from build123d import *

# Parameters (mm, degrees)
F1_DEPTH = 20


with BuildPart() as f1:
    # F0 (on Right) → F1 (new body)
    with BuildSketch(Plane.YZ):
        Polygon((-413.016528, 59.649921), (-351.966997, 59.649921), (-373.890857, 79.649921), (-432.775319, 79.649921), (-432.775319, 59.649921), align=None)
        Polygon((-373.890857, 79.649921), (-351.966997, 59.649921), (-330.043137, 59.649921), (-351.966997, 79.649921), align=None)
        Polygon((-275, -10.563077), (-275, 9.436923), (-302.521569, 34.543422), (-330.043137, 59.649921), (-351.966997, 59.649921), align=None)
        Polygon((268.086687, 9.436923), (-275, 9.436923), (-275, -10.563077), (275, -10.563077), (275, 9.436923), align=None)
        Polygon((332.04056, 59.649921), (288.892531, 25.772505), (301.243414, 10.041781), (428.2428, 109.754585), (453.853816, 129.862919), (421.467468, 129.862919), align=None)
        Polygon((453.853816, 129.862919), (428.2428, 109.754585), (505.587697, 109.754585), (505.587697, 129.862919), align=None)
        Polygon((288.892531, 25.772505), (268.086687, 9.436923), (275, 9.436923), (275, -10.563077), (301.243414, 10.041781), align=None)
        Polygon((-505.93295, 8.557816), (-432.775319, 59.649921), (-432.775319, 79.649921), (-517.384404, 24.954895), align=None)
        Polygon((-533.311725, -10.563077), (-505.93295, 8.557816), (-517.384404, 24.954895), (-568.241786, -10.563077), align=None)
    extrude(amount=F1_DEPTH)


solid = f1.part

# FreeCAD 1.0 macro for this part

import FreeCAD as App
import Part
import Sketcher
from FreeCAD import Vector
Q = App.Units.Quantity

doc = App.newDocument("Part")
body = doc.addObject("PartDesign::Body", "Body")

# Sketch on YZ plane
sketch1 = doc.addObject("Sketcher::SketchObject", "Sketch")
body.addObject(sketch1)
sketch1.AttachmentSupport = (doc.YZ_Plane, [""])
sketch1.MapMode = "FlatFace"
sketch1.addGeometry([
    Part.LineSegment(Vector(-432.775319, 59.649921, 0), Vector(-351.966997, 59.649921, 0)),  # 0
    Part.LineSegment(Vector(-351.966997, 59.649921, 0), Vector(-275, -10.563077, 0)),  # 1
    Part.LineSegment(Vector(-275, -10.563077, 0), Vector(275, -10.563077, 0)),  # 2
    Part.LineSegment(Vector(275, -10.563077, 0), Vector(301.243414, 10.041781, 0)),  # 3
    Part.LineSegment(Vector(301.243414, 10.041781, 0), Vector(428.2428, 109.754585, 0)),  # 4
    Part.LineSegment(Vector(428.2428, 109.754585, 0), Vector(505.587697, 109.754585, 0)),  # 5
    Part.LineSegment(Vector(505.587697, 109.754585, 0), Vector(505.587697, 129.862919, 0)),  # 6
    Part.LineSegment(Vector(505.587697, 129.862919, 0), Vector(421.467468, 129.862919, 0)),  # 7
    Part.LineSegment(Vector(421.467468, 129.862919, 0), Vector(332.04056, 59.649921, 0)),  # 8
    Part.LineSegment(Vector(332.04056, 59.649921, 0), Vector(288.892531, 25.772505, 0)),  # 9
    Part.LineSegment(Vector(288.892531, 25.772505, 0), Vector(268.086687, 9.436923, 0)),  # 10
    Part.LineSegment(Vector(268.086687, 9.436923, 0), Vector(-275, 9.436923, 0)),  # 11
    Part.LineSegment(Vector(-275, 9.436923, 0), Vector(-302.521569, 34.543422, 0)),  # 12
    Part.LineSegment(Vector(-302.521569, 34.543422, 0), Vector(-330.043137, 59.649921, 0)),  # 13
    Part.LineSegment(Vector(-330.043137, 59.649921, 0), Vector(-351.966997, 79.649921, 0)),  # 14
    Part.LineSegment(Vector(-351.966997, 79.649921, 0), Vector(-432.775319, 79.649921, 0)),  # 15
    Part.LineSegment(Vector(-432.775319, 79.649921, 0), Vector(-517.384404, 24.954895, 0)),  # 16
    Part.LineSegment(Vector(-517.384404, 24.954895, 0), Vector(-568.241786, -10.563077, 0)),  # 17
    Part.LineSegment(Vector(-568.241786, -10.563077, 0), Vector(-533.311725, -10.563077, 0)),  # 18
    Part.LineSegment(Vector(-533.311725, -10.563077, 0), Vector(-505.93295, 8.557816, 0)),  # 19
    Part.LineSegment(Vector(-505.93295, 8.557816, 0), Vector(-432.775319, 59.649921, 0)),  # 20
], False)
sketch1.addConstraint([
    Sketcher.Constraint("Coincident", 0, 2, 1, 1),
    Sketcher.Constraint("Coincident", 1, 2, 2, 1),
    Sketcher.Constraint("Coincident", 2, 2, 3, 1),
    Sketcher.Constraint("Coincident", 3, 2, 4, 1),
    Sketcher.Constraint("Coincident", 4, 2, 5, 1),
    Sketcher.Constraint("Coincident", 5, 2, 6, 1),
    Sketcher.Constraint("Coincident", 6, 2, 7, 1),
    Sketcher.Constraint("Coincident", 7, 2, 8, 1),
    Sketcher.Constraint("Coincident", 8, 2, 9, 1),
    Sketcher.Constraint("Coincident", 9, 2, 10, 1),
    Sketcher.Constraint("Coincident", 10, 2, 11, 1),
    Sketcher.Constraint("Coincident", 11, 2, 12, 1),
    Sketcher.Constraint("Coincident", 12, 2, 13, 1),
    Sketcher.Constraint("Coincident", 13, 2, 14, 1),
    Sketcher.Constraint("Coincident", 14, 2, 15, 1),
    Sketcher.Constraint("Coincident", 15, 2, 16, 1),
    Sketcher.Constraint("Coincident", 16, 2, 17, 1),
    Sketcher.Constraint("Coincident", 17, 2, 18, 1),
    Sketcher.Constraint("Coincident", 18, 2, 19, 1),
    Sketcher.Constraint("Coincident", 19, 2, 20, 1),
    Sketcher.Constraint("Coincident", 20, 2, 0, 1),
    Sketcher.Constraint("Horizontal", 0),
    Sketcher.Constraint("Horizontal", 2),
    Sketcher.Constraint("Horizontal", 5),
    Sketcher.Constraint("Vertical", 6),
    Sketcher.Constraint("Horizontal", 7),
    Sketcher.Constraint("Horizontal", 11),
    Sketcher.Constraint("Horizontal", 15),
    Sketcher.Constraint("Horizontal", 18),
    Sketcher.Constraint("Parallel", 3, 4),
    Sketcher.Constraint("Parallel", 4, 8),
    Sketcher.Constraint("Parallel", 8, 9),
    Sketcher.Constraint("Parallel", 9, 10),
    Sketcher.Constraint("Parallel", 1, 12),
    Sketcher.Constraint("Parallel", 12, 13),
    Sketcher.Constraint("Parallel", 13, 14),
    Sketcher.Constraint("Parallel", 17, 19),
    Sketcher.Constraint("Parallel", 19, 20),
    Sketcher.Constraint("Horizontal", 0, 2, 8, 2),
    Sketcher.Constraint("Horizontal", 8, 2, 13, 2),
    Sketcher.Constraint("Horizontal", 2, 2, 17, 2),
    Sketcher.Constraint("Vertical", 1, 2, 11, 2),
    Sketcher.Constraint("Vertical", 0, 2, 14, 2),
    Sketcher.Constraint("Vertical", 15, 2, 20, 2),
    Sketcher.Constraint("Equal", 12, 13),
    Sketcher.Constraint("DistanceX", 2, 1, 2, 2, Q("550 mm")),
    Sketcher.Constraint("DistanceX", 1, 2, -1, 1, Q("275 mm")),
    Sketcher.Constraint("DistanceY", 2, 2, 10, 2, Q("20 mm")),
    Sketcher.Constraint("DistanceY", 1, 2, 0, 2, Q("70.212998 mm")),
    Sketcher.Constraint("DistanceY", 8, 2, 7, 2, Q("70.212998 mm")),
    Sketcher.Constraint("Distance", 19, Q("33.394698 mm")),
    Sketcher.Constraint("DistanceX", 7, 2, 7, 1, Q("84.120229 mm")),
    Sketcher.Constraint("DistanceX", 18, 1, 18, 2, Q("34.930061 mm")),
    Sketcher.Constraint("DistanceX", -1, 1, 4, 2, Q("428.2428 mm")),
    Sketcher.Constraint("Distance", 8, Q("113.697128 mm")),
    Sketcher.Constraint("DistanceX", 0, 1, 0, 2, Q("80.808322 mm")),
    Sketcher.Constraint("DistanceX", 5, 1, 5, 2, Q("77.344897 mm")),
    Sketcher.Constraint("DistanceY", -1, 1, 0, 2, Q("59.649921 mm")),
    Sketcher.Constraint("DistanceY", -1, 1, 3, 2, Q("10.041781 mm")),
    Sketcher.Constraint("DistanceX", -1, 1, 9, 2, Q("288.892531 mm")),
    Sketcher.Constraint("DistanceX", 12, 2, -1, 1, Q("302.521569 mm")),
    Sketcher.Constraint("DistanceX", 19, 2, -1, 1, Q("505.93295 mm")),
    Sketcher.Constraint("DistanceX", 18, 2, 16, 2, Q("15.927321 mm")),
])
pad1 = doc.addObject("PartDesign::Pad", "Pad")
body.addObject(pad1)
pad1.Profile = sketch1
pad1.Length = 20

doc.recompute()
